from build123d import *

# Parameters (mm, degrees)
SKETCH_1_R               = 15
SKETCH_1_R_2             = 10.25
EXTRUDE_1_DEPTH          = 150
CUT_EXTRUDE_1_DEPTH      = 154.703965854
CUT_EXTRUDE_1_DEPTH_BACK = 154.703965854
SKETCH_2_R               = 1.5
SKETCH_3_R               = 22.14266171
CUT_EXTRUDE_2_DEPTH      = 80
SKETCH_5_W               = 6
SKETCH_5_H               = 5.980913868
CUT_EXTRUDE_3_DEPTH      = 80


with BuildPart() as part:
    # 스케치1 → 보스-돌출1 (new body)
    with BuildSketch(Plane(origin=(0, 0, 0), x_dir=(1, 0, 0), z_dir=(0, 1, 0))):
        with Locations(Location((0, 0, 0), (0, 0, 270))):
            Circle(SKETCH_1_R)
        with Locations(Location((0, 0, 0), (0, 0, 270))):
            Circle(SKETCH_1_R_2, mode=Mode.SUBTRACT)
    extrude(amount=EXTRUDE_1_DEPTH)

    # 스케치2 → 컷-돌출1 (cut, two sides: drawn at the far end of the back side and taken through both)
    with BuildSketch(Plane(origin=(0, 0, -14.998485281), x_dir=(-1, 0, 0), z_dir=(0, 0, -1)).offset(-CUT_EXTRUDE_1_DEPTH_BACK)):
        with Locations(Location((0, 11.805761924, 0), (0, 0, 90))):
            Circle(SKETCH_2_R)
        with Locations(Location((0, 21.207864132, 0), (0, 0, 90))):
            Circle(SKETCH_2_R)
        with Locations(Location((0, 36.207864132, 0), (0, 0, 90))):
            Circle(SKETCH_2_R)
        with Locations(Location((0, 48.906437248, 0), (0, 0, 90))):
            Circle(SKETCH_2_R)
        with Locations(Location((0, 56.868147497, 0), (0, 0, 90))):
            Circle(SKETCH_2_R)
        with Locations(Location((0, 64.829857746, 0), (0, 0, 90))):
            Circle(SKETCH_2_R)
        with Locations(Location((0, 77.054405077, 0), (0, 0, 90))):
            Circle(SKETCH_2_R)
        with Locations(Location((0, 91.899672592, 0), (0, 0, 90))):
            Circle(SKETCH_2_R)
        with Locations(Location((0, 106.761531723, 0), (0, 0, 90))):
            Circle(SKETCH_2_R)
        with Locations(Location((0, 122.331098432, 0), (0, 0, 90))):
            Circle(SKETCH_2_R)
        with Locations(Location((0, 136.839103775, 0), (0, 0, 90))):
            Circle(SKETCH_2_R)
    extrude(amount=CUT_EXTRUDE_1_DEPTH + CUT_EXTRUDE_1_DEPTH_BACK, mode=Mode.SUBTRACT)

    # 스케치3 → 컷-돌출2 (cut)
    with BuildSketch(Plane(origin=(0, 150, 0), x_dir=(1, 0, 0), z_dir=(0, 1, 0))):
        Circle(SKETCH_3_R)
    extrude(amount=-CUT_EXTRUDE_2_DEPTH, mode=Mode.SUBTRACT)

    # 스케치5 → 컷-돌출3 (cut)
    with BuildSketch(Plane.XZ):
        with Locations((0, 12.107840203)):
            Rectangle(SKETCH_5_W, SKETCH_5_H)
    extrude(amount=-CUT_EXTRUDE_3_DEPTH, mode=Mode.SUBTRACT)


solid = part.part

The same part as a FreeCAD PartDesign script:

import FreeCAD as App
import Part
import Sketcher

V = App.Vector


def add_polygon(sketch, points):
    """Adds a closed chain of lines whose ends are joined by coincident constraints."""
    first, n = sketch.GeometryCount, len(points)
    for a, b in zip(points, points[1:] + points[:1]):
        sketch.addGeometry(Part.LineSegment(App.Vector(*a, 0), App.Vector(*b, 0)), False)
    for i in range(n):
        sketch.addConstraint(Sketcher.Constraint("Coincident", first + i, 2, first + (i + 1) % n, 1))

doc = App.newDocument("Part")
body = doc.addObject("PartDesign::Body", "Body")

# Sketch on XZ plane
sketch1 = body.newObject("Sketcher::SketchObject", "Sketch")
sketch1.AttachmentSupport = (doc.getObject("XZ_Plane"), [""])
sketch1.MapMode = "FlatFace"
sketch1.addGeometry(Part.Circle(V(0, 0, 0), V(0, 0, 1), 15), False)
sketch1.addGeometry(Part.Circle(V(0, 0, 0), V(0, 0, 1), 10), False)
sketch1.addConstraint(Sketcher.Constraint("Coincident", 0, 3, -1, 1))
sketch1.addConstraint(Sketcher.Constraint("Coincident", 1, 3, -1, 1))
sketch1.addConstraint(Sketcher.Constraint("Diameter", 0, 30.0))
sketch1.addConstraint(Sketcher.Constraint("Diameter", 1, 20.5))
pad1 = body.newObject("PartDesign::Pad", "Pad")
pad1.Profile = sketch1
pad1.Length = 150
pad1.Reversed = True

# Sketch on XY plane
sketch2 = body.newObject("Sketcher::SketchObject", "Sketch001")
sketch2.AttachmentSupport = (doc.getObject("XY_Plane"), [""])
sketch2.MapMode = "FlatFace"
sketch2.AttachmentOffset = App.Placement(V(0, 0, -14.998485), App.Rotation())
sketch2.addGeometry(Part.Circle(V(0, 11.8, 0), V(0, 0, 1), 1.5), False)
sketch2.addGeometry(Part.Circle(V(0, 21.2, 0), V(0, 0, 1), 1.5), False)
sketch2.addGeometry(Part.Circle(V(0, 36.2, 0), V(0, 0, 1), 1.5), False)
sketch2.addGeometry(Part.Circle(V(0, 48.9, 0), V(0, 0, 1), 1.5), False)
sketch2.addGeometry(Part.Circle(V(0, 56.9, 0), V(0, 0, 1), 1.5), False)
sketch2.addGeometry(Part.Circle(V(0, 64.8, 0), V(0, 0, 1), 1.5), False)
sketch2.addGeometry(Part.Circle(V(0, 77.1, 0), V(0, 0, 1), 1.5), False)
sketch2.addGeometry(Part.Circle(V(0, 91.9, 0), V(0, 0, 1), 1.5), False)
sketch2.addGeometry(Part.Circle(V(0, 106.8, 0), V(0, 0, 1), 1.5), False)
sketch2.addGeometry(Part.Circle(V(0, 122.3, 0), V(0, 0, 1), 1.5), False)
sketch2.addGeometry(Part.Circle(V(0, 136.8, 0), V(0, 0, 1), 1.5), False)
sketch2.addConstraint(Sketcher.Constraint("Equal", 0, 1))
sketch2.addConstraint(Sketcher.Constraint("Equal", 1, 2))
sketch2.addConstraint(Sketcher.Constraint("Equal", 2, 3))
sketch2.addConstraint(Sketcher.Constraint("Equal", 3, 4))
sketch2.addConstraint(Sketcher.Constraint("Equal", 4, 5))
sketch2.addConstraint(Sketcher.Constraint("Equal", 5, 6))
sketch2.addConstraint(Sketcher.Constraint("Equal", 6, 7))
sketch2.addConstraint(Sketcher.Constraint("Equal", 7, 8))
sketch2.addConstraint(Sketcher.Constraint("Equal", 8, 9))
sketch2.addConstraint(Sketcher.Constraint("Equal", 9, 10))
sketch2.addConstraint(Sketcher.Constraint("PointOnObject", 0, 3, -2))
sketch2.addConstraint(Sketcher.Constraint("PointOnObject", 1, 3, -2))
sketch2.addConstraint(Sketcher.Constraint("PointOnObject", 2, 3, -2))
sketch2.addConstraint(Sketcher.Constraint("PointOnObject", 3, 3, -2))
sketch2.addConstraint(Sketcher.Constraint("PointOnObject", 4, 3, -2))
sketch2.addConstraint(Sketcher.Constraint("PointOnObject", 5, 3, -2))
sketch2.addConstraint(Sketcher.Constraint("PointOnObject", 6, 3, -2))
sketch2.addConstraint(Sketcher.Constraint("PointOnObject", 7, 3, -2))
sketch2.addConstraint(Sketcher.Constraint("PointOnObject", 8, 3, -2))
sketch2.addConstraint(Sketcher.Constraint("PointOnObject", 9, 3, -2))
sketch2.addConstraint(Sketcher.Constraint("PointOnObject", 10, 3, -2))
sketch2.addConstraint(Sketcher.Constraint("Diameter", 0, 3.0))
sketch2.addConstraint(Sketcher.Constraint("DistanceY", 1, 3, 2, 3, 15.0))
sketch2.addConstraint(Sketcher.Constraint("DistanceY", -1, 1, 9, 3, 122.331098))
sketch2.addConstraint(Sketcher.Constraint("DistanceY", 6, 3, 10, 3, 59.784699))
sketch2.addConstraint(Sketcher.Constraint("DistanceY", -1, 1, 0, 3, 11.805762))
sketch2.addConstraint(Sketcher.Constraint("DistanceY", -1, 1, 8, 3, 106.761532))
sketch2.addConstraint(Sketcher.Constraint("DistanceY", 3, 3, 4, 3, 7.96171))
sketch2.addConstraint(Sketcher.Constraint("DistanceY", 4, 3, 5, 3, 7.96171))
sketch2.addConstraint(Sketcher.Constraint("DistanceY", 2, 3, 6, 3, 40.846541))
sketch2.addConstraint(Sketcher.Constraint("DistanceY", 2, 3, 7, 3, 55.691808))
sketch2.addConstraint(Sketcher.Constraint("DistanceY", 7, 3, 8, 3, 14.861859))
sketch2.addConstraint(Sketcher.Constraint("DistanceY", 5, 3, 9, 3, 57.501241))
pocket1 = body.newObject("PartDesign::Pocket", "Pocket")
pocket1.Profile = sketch2
pocket1.Type = "ThroughAll"
pocket1.Midplane = True

# Sketch on XZ plane
sketch3 = body.newObject("Sketcher::SketchObject", "Sketch002")
sketch3.AttachmentSupport = (doc.getObject("XZ_Plane"), [""])
sketch3.MapMode = "FlatFace"
sketch3.AttachmentOffset = App.Placement(V(0, 0, -150), App.Rotation())
sketch3.addGeometry(Part.Circle(V(0, 0, 0), V(0, 0, 1), 22), False)
sketch3.addConstraint(Sketcher.Constraint("Coincident", 0, 3, -1, 1))
sketch3.addConstraint(Sketcher.Constraint("Diameter", 0, 44.285323))
pocket2 = body.newObject("PartDesign::Pocket", "Pocket001")
pocket2.Profile = sketch3
pocket2.Length = 80
pocket2.Reversed = True

# Sketch on XZ plane
sketch4 = body.newObject("Sketcher::SketchObject", "Sketch003")
sketch4.AttachmentSupport = (doc.getObject("XZ_Plane"), [""])
sketch4.MapMode = "FlatFace"
add_polygon(sketch4, [(-3, 15), (-3, 9), (3, 9), (3, 15)])  # lines 0-3
sketch4.addConstraint(Sketcher.Constraint("Vertical", 0))
sketch4.addConstraint(Sketcher.Constraint("Horizontal", 1))
sketch4.addConstraint(Sketcher.Constraint("Vertical", 2))
sketch4.addConstraint(Sketcher.Constraint("Horizontal", 3))
sketch4.addConstraint(Sketcher.Constraint("DistanceX", 1, 1, 1, 2, 6.0))
sketch4.addConstraint(Sketcher.Constraint("DistanceX", 0, 2, -1, 1, 3.0))
sketch4.addConstraint(Sketcher.Constraint("DistanceY", 0, 2, 0, 1, 5.980914))
sketch4.addConstraint(Sketcher.Constraint("DistanceY", -1, 1, 0, 2, 9.117383))
pocket3 = body.newObject("PartDesign::Pocket", "Pocket002")
pocket3.Profile = sketch4
pocket3.Length = 80

doc.recompute()
